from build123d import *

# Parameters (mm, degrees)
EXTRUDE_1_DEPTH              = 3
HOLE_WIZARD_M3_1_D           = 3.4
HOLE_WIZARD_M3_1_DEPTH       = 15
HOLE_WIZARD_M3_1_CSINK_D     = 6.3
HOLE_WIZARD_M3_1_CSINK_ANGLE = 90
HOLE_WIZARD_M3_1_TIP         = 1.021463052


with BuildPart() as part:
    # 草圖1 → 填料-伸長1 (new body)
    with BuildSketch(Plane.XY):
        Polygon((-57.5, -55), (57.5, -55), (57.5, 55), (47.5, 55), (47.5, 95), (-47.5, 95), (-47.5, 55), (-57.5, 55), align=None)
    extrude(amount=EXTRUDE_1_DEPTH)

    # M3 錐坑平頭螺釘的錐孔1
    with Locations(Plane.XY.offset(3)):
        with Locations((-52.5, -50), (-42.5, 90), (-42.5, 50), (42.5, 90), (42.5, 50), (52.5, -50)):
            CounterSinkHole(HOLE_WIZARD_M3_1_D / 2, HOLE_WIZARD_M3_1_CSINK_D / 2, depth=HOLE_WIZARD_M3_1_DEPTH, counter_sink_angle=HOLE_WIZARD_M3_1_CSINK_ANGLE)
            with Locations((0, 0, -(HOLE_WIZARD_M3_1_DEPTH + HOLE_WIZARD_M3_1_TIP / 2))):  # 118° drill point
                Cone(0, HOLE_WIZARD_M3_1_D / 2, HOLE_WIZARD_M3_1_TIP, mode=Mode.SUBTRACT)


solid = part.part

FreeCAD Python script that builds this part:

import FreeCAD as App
import Part
import Sketcher
from FreeCAD import Vector

doc = App.newDocument("Part")
body = doc.addObject("PartDesign::Body", "Body")

# Sketch on XY plane
sketch1 = doc.addObject("Sketcher::SketchObject", "Sketch")
body.addObject(sketch1)
sketch1.AttachmentSupport = (doc.XY_Plane, [""])
sketch1.MapMode = "FlatFace"
sketch1.addGeometry([
    Part.LineSegment(Vector(-58, -55, 0), Vector(58, -55, 0)),  # 0
    Part.LineSegment(Vector(58, -55, 0), Vector(58, 55, 0)),  # 1
    Part.LineSegment(Vector(58, 55, 0), Vector(48, 55, 0)),  # 2
    Part.LineSegment(Vector(48, 55, 0), Vector(48, 95, 0)),  # 3
    Part.LineSegment(Vector(48, 95, 0), Vector(-48, 95, 0)),  # 4
    Part.LineSegment(Vector(-48, 95, 0), Vector(-48, 55, 0)),  # 5
    Part.LineSegment(Vector(-48, 55, 0), Vector(-58, 55, 0)),  # 6
    Part.LineSegment(Vector(-58, 55, 0), Vector(-58, -55, 0)),  # 7
], False)
sketch1.addConstraint([
    Sketcher.Constraint("Coincident", 0, 2, 1, 1),
    Sketcher.Constraint("Coincident", 1, 2, 2, 1),
    Sketcher.Constraint("Coincident", 2, 2, 3, 1),
    Sketcher.Constraint("Coincident", 3, 2, 4, 1),
    Sketcher.Constraint("Coincident", 4, 2, 5, 1),
    Sketcher.Constraint("Coincident", 5, 2, 6, 1),
    Sketcher.Constraint("Coincident", 6, 2, 7, 1),
    Sketcher.Constraint("Coincident", 7, 2, 0, 1),
    Sketcher.Constraint("Horizontal", 0),
    Sketcher.Constraint("Vertical", 1),
    Sketcher.Constraint("Horizontal", 2),
    Sketcher.Constraint("Vertical", 3),
    Sketcher.Constraint("Horizontal", 4),
    Sketcher.Constraint("Vertical", 5),
    Sketcher.Constraint("Horizontal", 6),
    Sketcher.Constraint("Vertical", 7),
    Sketcher.Constraint("Symmetric", 0, 2, 6, 2, -1, 1),
    Sketcher.Constraint("Symmetric", 2, 2, 5, 2, -2),
    Sketcher.Constraint("DistanceX", 0, 1, 0, 2, 115.0),
    Sketcher.Constraint("DistanceX", 2, 2, 2, 1, 10.0),
    Sketcher.Constraint("DistanceY", 1, 1, 1, 2, 110.0),
    Sketcher.Constraint("DistanceY", 3, 1, 3, 2, 40.0),
])
pad1 = doc.addObject("PartDesign::Pad", "Pad")
body.addObject(pad1)
pad1.Profile = sketch1
pad1.Length = 3

# Sketch on XY plane
sketch2 = doc.addObject("Sketcher::SketchObject", "Sketch001")
body.addObject(sketch2)
sketch2.AttachmentSupport = (doc.XY_Plane, [""])
sketch2.MapMode = "FlatFace"
sketch2.AttachmentOffset = App.Placement(Vector(0, 0, 3), App.Rotation())
sketch2.addGeometry([
    Part.Circle(Vector(-52.5, -50, 0), Vector(0, 0, 1), 1.7),  # 0
    Part.Circle(Vector(-42.5, 90, 0), Vector(0, 0, 1), 1.7),  # 1
    Part.Circle(Vector(-42.5, 50, 0), Vector(0, 0, 1), 1.7),  # 2
    Part.Circle(Vector(42.5, 90, 0), Vector(0, 0, 1), 1.7),  # 3
    Part.Circle(Vector(42.5, 50, 0), Vector(0, 0, 1), 1.7),  # 4
    Part.Circle(Vector(52.5, -50, 0), Vector(0, 0, 1), 1.7),  # 5
], False)
sketch2.addConstraint([
    Sketcher.Constraint("Equal", 0, 1),
    Sketcher.Constraint("Equal", 1, 2),
    Sketcher.Constraint("Equal", 2, 3),
    Sketcher.Constraint("Equal", 3, 4),
    Sketcher.Constraint("Equal", 4, 5),
    Sketcher.Constraint("Symmetric", 1, 3, 3, 3, -2),
    Sketcher.Constraint("Symmetric", 2, 3, 4, 3, -2),
    Sketcher.Constraint("Symmetric", 0, 3, 5, 3, -2),
    Sketcher.Constraint("Vertical", 1, 3, 2, 3),
    Sketcher.Constraint("Diameter", 0, 3.4),
    Sketcher.Constraint("DistanceY", 0, 3, -1, 1, 50.0),
    Sketcher.Constraint("DistanceY", -1, 1, 1, 3, 90.0),
    Sketcher.Constraint("DistanceY", -1, 1, 2, 3, 50.0),
    Sketcher.Constraint("DistanceX", 0, 3, 1, 3, 10.0),
    Sketcher.Constraint("DistanceX", 1, 3, 3, 3, 85.0),
])
doc.recompute()
hole = doc.addObject("PartDesign::Hole", "Hole")
body.addObject(hole)
hole.Profile = sketch2
hole.ThreadType = "None"
hole.Diameter = 3.4
hole.DepthType = "Dimension"
hole.Depth = 15
hole.DrillPoint = "Angled"
hole.DrillPointAngle = 118
hole.HoleCutType = "Countersink"
hole.HoleCutDiameter = 6.3
hole.HoleCutCountersinkAngle = 90

doc.recompute()
